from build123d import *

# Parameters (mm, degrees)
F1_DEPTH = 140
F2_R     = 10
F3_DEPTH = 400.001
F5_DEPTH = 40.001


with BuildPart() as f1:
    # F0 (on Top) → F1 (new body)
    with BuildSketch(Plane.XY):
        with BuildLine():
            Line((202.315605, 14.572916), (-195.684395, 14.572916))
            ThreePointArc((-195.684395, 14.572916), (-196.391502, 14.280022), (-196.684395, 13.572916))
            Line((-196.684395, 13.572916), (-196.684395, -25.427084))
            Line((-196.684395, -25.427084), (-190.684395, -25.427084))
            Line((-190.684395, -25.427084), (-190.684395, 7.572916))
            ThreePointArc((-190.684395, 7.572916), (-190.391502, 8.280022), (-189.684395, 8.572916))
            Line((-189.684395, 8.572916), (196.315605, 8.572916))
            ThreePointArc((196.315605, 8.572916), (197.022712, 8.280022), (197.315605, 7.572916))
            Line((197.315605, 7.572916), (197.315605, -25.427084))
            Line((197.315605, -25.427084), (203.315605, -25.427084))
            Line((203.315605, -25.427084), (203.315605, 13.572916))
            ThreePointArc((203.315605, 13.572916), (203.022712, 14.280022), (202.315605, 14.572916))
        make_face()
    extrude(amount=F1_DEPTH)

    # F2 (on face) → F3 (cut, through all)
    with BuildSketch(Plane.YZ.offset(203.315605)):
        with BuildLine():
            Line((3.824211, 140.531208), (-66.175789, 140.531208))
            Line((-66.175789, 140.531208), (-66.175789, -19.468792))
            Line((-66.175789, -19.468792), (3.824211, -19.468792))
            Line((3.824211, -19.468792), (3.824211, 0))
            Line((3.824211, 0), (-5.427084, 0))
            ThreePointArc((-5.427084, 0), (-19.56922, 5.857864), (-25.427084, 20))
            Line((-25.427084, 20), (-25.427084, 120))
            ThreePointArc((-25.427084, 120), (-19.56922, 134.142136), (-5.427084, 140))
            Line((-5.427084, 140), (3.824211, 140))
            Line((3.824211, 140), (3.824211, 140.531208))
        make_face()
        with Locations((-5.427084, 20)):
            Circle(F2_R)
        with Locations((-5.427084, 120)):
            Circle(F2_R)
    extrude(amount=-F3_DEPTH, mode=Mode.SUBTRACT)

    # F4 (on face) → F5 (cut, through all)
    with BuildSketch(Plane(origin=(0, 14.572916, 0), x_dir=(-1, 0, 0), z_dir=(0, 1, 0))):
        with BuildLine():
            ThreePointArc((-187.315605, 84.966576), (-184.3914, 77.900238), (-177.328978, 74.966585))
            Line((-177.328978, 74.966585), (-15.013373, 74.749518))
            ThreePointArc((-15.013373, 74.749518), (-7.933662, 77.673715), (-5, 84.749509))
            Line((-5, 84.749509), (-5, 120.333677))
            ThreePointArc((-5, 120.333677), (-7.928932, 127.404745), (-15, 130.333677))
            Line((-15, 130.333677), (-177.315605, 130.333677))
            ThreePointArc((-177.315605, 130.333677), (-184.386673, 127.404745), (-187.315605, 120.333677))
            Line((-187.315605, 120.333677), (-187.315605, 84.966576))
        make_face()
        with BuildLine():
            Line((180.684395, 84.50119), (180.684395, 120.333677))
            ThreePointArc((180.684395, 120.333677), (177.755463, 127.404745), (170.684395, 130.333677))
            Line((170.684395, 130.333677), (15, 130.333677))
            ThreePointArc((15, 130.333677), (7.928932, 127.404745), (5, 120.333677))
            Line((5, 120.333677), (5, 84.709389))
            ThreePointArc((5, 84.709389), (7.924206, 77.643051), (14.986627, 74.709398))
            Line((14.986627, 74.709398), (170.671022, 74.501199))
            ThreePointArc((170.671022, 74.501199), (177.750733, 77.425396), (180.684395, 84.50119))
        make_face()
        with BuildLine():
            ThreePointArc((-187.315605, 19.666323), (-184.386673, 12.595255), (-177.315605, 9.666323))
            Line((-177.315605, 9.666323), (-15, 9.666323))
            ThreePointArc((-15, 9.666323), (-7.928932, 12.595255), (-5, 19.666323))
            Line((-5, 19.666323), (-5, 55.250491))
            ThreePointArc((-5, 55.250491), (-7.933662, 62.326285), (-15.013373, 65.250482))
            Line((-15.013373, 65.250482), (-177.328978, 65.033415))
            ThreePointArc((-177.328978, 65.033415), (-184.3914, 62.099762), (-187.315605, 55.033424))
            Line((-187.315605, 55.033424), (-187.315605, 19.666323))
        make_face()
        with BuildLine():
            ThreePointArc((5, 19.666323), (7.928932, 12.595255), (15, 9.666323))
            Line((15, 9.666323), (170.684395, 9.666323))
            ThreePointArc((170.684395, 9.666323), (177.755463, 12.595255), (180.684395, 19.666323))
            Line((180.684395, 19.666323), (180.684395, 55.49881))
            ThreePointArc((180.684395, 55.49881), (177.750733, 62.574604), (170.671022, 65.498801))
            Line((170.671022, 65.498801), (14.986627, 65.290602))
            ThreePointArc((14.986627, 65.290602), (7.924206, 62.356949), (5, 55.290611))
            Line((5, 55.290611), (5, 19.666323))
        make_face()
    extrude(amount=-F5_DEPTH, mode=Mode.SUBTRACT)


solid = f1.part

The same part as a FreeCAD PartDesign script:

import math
import FreeCAD as App
import Part
import Sketcher
Q = App.Units.Quantity

doc = App.newDocument("Part")
body = doc.addObject("PartDesign::Body", "Body")

# Sketch on XY plane
sketch1 = body.newObject("Sketcher::SketchObject", "Sketch")
sketch1.AttachmentSupport = (doc.getObject("XY_Plane"), [""])
sketch1.MapMode = "FlatFace"
sketch1.addGeometry(Part.LineSegment(App.Vector(202.3, 14.6, 0), App.Vector(-195.7, 14.6, 0)), False)
sketch1.addGeometry(Part.ArcOfCircle(Part.Circle(App.Vector(-195.7, 13.6, 0), App.Vector(0, 0, 1), 1), math.radians(90), math.radians(180)), False)
sketch1.addGeometry(Part.LineSegment(App.Vector(-196.7, 13.6, 0), App.Vector(-196.7, -25.4, 0)), False)
sketch1.addGeometry(Part.LineSegment(App.Vector(-196.7, -25.4, 0), App.Vector(-190.7, -25.4, 0)), False)
sketch1.addGeometry(Part.LineSegment(App.Vector(-190.7, -25.4, 0), App.Vector(-190.7, 7.6, 0)), False)
sketch1.addGeometry(Part.ArcOfCircle(Part.Circle(App.Vector(-189.7, 7.6, 0), App.Vector(0, 0, 1), 1), math.radians(90), math.radians(180)), False)
sketch1.addGeometry(Part.LineSegment(App.Vector(-189.7, 8.6, 0), App.Vector(196.3, 8.6, 0)), False)
sketch1.addGeometry(Part.ArcOfCircle(Part.Circle(App.Vector(196.3, 7.6, 0), App.Vector(0, 0, 1), 1), math.radians(0), math.radians(90)), False)
sketch1.addGeometry(Part.LineSegment(App.Vector(197.3, 7.6, 0), App.Vector(197.3, -25.4, 0)), False)
sketch1.addGeometry(Part.LineSegment(App.Vector(197.3, -25.4, 0), App.Vector(203.3, -25.4, 0)), False)
sketch1.addGeometry(Part.LineSegment(App.Vector(203.3, -25.4, 0), App.Vector(203.3, 13.6, 0)), False)
sketch1.addGeometry(Part.ArcOfCircle(Part.Circle(App.Vector(202.3, 13.6, 0), App.Vector(0, 0, 1), 1), math.radians(0), math.radians(90)), False)
sketch1.addConstraint(Sketcher.Constraint("Tangent", 0, 2, 1, 1))
sketch1.addConstraint(Sketcher.Constraint("Tangent", 1, 2, 2, 1))
sketch1.addConstraint(Sketcher.Constraint("Coincident", 2, 2, 3, 1))
sketch1.addConstraint(Sketcher.Constraint("Coincident", 3, 2, 4, 1))
sketch1.addConstraint(Sketcher.Constraint("Tangent", 4, 2, 5, 2))
sketch1.addConstraint(Sketcher.Constraint("Tangent", 5, 1, 6, 1))
sketch1.addConstraint(Sketcher.Constraint("Tangent", 6, 2, 7, 2))
sketch1.addConstraint(Sketcher.Constraint("Tangent", 7, 1, 8, 1))
sketch1.addConstraint(Sketcher.Constraint("Coincident", 8, 2, 9, 1))
sketch1.addConstraint(Sketcher.Constraint("Coincident", 9, 2, 10, 1))
sketch1.addConstraint(Sketcher.Constraint("Tangent", 10, 2, 11, 1))
sketch1.addConstraint(Sketcher.Constraint("Tangent", 11, 2, 0, 1))
sketch1.addConstraint(Sketcher.Constraint("Horizontal", 0))
sketch1.addConstraint(Sketcher.Constraint("Vertical", 2))
sketch1.addConstraint(Sketcher.Constraint("Horizontal", 3))
sketch1.addConstraint(Sketcher.Constraint("Vertical", 4))
sketch1.addConstraint(Sketcher.Constraint("Horizontal", 6))
sketch1.addConstraint(Sketcher.Constraint("Vertical", 8))
sketch1.addConstraint(Sketcher.Constraint("Horizontal", 9))
sketch1.addConstraint(Sketcher.Constraint("Vertical", 10))
sketch1.addConstraint(Sketcher.Constraint("Equal", 1, 5))
sketch1.addConstraint(Sketcher.Constraint("Equal", 5, 7))
sketch1.addConstraint(Sketcher.Constraint("Equal", 7, 11))
sketch1.addConstraint(Sketcher.Constraint("Horizontal", 3, 2, 8, 2))
sketch1.addConstraint(Sketcher.Constraint("Equal", 3, 9))
sketch1.addConstraint(Sketcher.Constraint("Radius", 1, Q("1.000001 mm")))
sketch1.addConstraint(Sketcher.Constraint("DistanceX", 0, 2, 0, 1, Q("398 mm")))
sketch1.addConstraint(Sketcher.Constraint("DistanceX", 3, 1, 3, 2, Q("6 mm")))
sketch1.addConstraint(Sketcher.Constraint("DistanceY", 2, 2, 2, 1, Q("39 mm")))
sketch1.addConstraint(Sketcher.Constraint("DistanceY", 4, 1, 4, 2, Q("33 mm")))
sketch1.addConstraint(Sketcher.Constraint("DistanceX", 1, 3, -1, 1, Q("195.684394 mm")))
sketch1.addConstraint(Sketcher.Constraint("DistanceY", -1, 1, 1, 3, Q("13.572915 mm")))
pad1 = body.newObject("PartDesign::Pad", "Pad")
pad1.Profile = sketch1
pad1.Length = 140

# Sketch on YZ plane
sketch2 = body.newObject("Sketcher::SketchObject", "Sketch001")
sketch2.AttachmentSupport = (doc.getObject("YZ_Plane"), [""])
sketch2.MapMode = "FlatFace"
sketch2.AttachmentOffset = App.Placement(App.Vector(0, 0, 203.315605), App.Rotation())
sketch2.addGeometry(Part.LineSegment(App.Vector(3.8, 140.5, 0), App.Vector(-66.2, 140.5, 0)), False)
sketch2.addGeometry(Part.LineSegment(App.Vector(-66.2, 140.5, 0), App.Vector(-66.2, -19.5, 0)), False)
sketch2.addGeometry(Part.LineSegment(App.Vector(-66.2, -19.5, 0), App.Vector(3.8, -19.5, 0)), False)
sketch2.addGeometry(Part.LineSegment(App.Vector(3.8, -19.5, 0), App.Vector(3.8, 0, 0)), False)
sketch2.addGeometry(Part.LineSegment(App.Vector(3.8, 0, 0), App.Vector(-5.4, 0, 0)), False)
sketch2.addGeometry(Part.ArcOfCircle(Part.Circle(App.Vector(-5.4, 20, 0), App.Vector(0, 0, 1), 20), math.radians(180), math.radians(270)), False)
sketch2.addGeometry(Part.LineSegment(App.Vector(-25.4, 20, 0), App.Vector(-25.4, 120, 0)), False)
sketch2.addGeometry(Part.ArcOfCircle(Part.Circle(App.Vector(-5.4, 120, 0), App.Vector(0, 0, 1), 20), math.radians(90), math.radians(180)), False)
sketch2.addGeometry(Part.LineSegment(App.Vector(-5.4, 140, 0), App.Vector(3.8, 140, 0)), False)
sketch2.addGeometry(Part.LineSegment(App.Vector(3.8, 140, 0), App.Vector(3.8, 140.5, 0)), False)
sketch2.addGeometry(Part.Circle(App.Vector(-5.4, 20, 0), App.Vector(0, 0, 1), 10), False)
sketch2.addGeometry(Part.Circle(App.Vector(-5.4, 120, 0), App.Vector(0, 0, 1), 10), False)
sketch2.addConstraint(Sketcher.Constraint("Coincident", 0, 2, 1, 1))
sketch2.addConstraint(Sketcher.Constraint("Coincident", 1, 2, 2, 1))
sketch2.addConstraint(Sketcher.Constraint("Coincident", 2, 2, 3, 1))
sketch2.addConstraint(Sketcher.Constraint("Coincident", 3, 2, 4, 1))
sketch2.addConstraint(Sketcher.Constraint("Tangent", 4, 2, 5, 2))
sketch2.addConstraint(Sketcher.Constraint("Tangent", 5, 1, 6, 1))
sketch2.addConstraint(Sketcher.Constraint("Tangent", 6, 2, 7, 2))
sketch2.addConstraint(Sketcher.Constraint("Tangent", 7, 1, 8, 1))
sketch2.addConstraint(Sketcher.Constraint("Coincident", 8, 2, 9, 1))
sketch2.addConstraint(Sketcher.Constraint("Coincident", 9, 2, 0, 1))
sketch2.addConstraint(Sketcher.Constraint("Horizontal", 0))
sketch2.addConstraint(Sketcher.Constraint("Vertical", 1))
sketch2.addConstraint(Sketcher.Constraint("Horizontal", 2))
sketch2.addConstraint(Sketcher.Constraint("Vertical", 3))
sketch2.addConstraint(Sketcher.Constraint("Horizontal", 4))
sketch2.addConstraint(Sketcher.Constraint("Vertical", 6))
sketch2.addConstraint(Sketcher.Constraint("Horizontal", 8))
sketch2.addConstraint(Sketcher.Constraint("Vertical", 9))
sketch2.addConstraint(Sketcher.Constraint("Coincident", 10, 3, 5, 3))
sketch2.addConstraint(Sketcher.Constraint("Coincident", 11, 3, 7, 3))
sketch2.addConstraint(Sketcher.Constraint("Equal", 5, 7))
sketch2.addConstraint(Sketcher.Constraint("Equal", 10, 11))
sketch2.addConstraint(Sketcher.Constraint("PointOnObject", 3, 2, -1))
sketch2.addConstraint(Sketcher.Constraint("Vertical", 3, 2, 8, 2))
sketch2.addConstraint(Sketcher.Constraint("Diameter", 10, Q("20 mm")))
sketch2.addConstraint(Sketcher.Constraint("Radius", 5, Q("19.999999 mm")))
sketch2.addConstraint(Sketcher.Constraint("DistanceX", 0, 2, 0, 1, Q("70 mm")))
sketch2.addConstraint(Sketcher.Constraint("DistanceY", 1, 2, 1, 1, Q("160 mm")))
sketch2.addConstraint(Sketcher.Constraint("DistanceY", 6, 1, 6, 2, Q("100 mm")))
sketch2.addConstraint(Sketcher.Constraint("DistanceX", 4, 2, 4, 1, Q("9.251295 mm")))
sketch2.addConstraint(Sketcher.Constraint("DistanceY", 3, 1, 3, 2, Q("19.468792 mm")))
sketch2.addConstraint(Sketcher.Constraint("DistanceX", 0, 2, -1, 1, Q("66.175789 mm")))
pocket1 = body.newObject("PartDesign::Pocket", "Pocket")
pocket1.Profile = sketch2
pocket1.Type = "ThroughAll"

# Sketch on XZ plane
sketch3 = body.newObject("Sketcher::SketchObject", "Sketch002")
sketch3.AttachmentSupport = (doc.getObject("XZ_Plane"), [""])
sketch3.MapMode = "FlatFace"
sketch3.AttachmentOffset = App.Placement(App.Vector(0, 0, -14.572916), App.Rotation())
sketch3.addGeometry(Part.ArcOfCircle(Part.Circle(App.Vector(177, 85, 0), App.Vector(0, 0, 1), 10), math.radians(-90), math.radians(0)), False)
sketch3.addGeometry(Part.LineSegment(App.Vector(177, 75, 0), App.Vector(15, 75, 0)), False)
sketch3.addGeometry(Part.ArcOfCircle(Part.Circle(App.Vector(15, 85, 0), App.Vector(0, 0, 1), 10), math.radians(-180), math.radians(-90)), False)
sketch3.addGeometry(Part.LineSegment(App.Vector(5, 85, 0), App.Vector(5, 120, 0)), False)
sketch3.addGeometry(Part.ArcOfCircle(Part.Circle(App.Vector(15, 120, 0), App.Vector(0, 0, 1), 10), math.radians(90), math.radians(180)), False)
sketch3.addGeometry(Part.LineSegment(App.Vector(15, 130, 0), App.Vector(177, 130, 0)), False)
sketch3.addGeometry(Part.ArcOfCircle(Part.Circle(App.Vector(177, 120, 0), App.Vector(0, 0, 1), 10), math.radians(0), math.radians(90)), False)
sketch3.addGeometry(Part.LineSegment(App.Vector(187, 120, 0), App.Vector(187, 85, 0)), False)
sketch3.addGeometry(Part.LineSegment(App.Vector(-181, 85, 0), App.Vector(-181, 120, 0)), False)
sketch3.addGeometry(Part.ArcOfCircle(Part.Circle(App.Vector(-171, 120, 0), App.Vector(0, 0, 1), 10), math.radians(90), math.radians(180)), False)
sketch3.addGeometry(Part.LineSegment(App.Vector(-171, 130, 0), App.Vector(-15, 130, 0)), False)
sketch3.addGeometry(Part.ArcOfCircle(Part.Circle(App.Vector(-15, 120, 0), App.Vector(0, 0, 1), 10), math.radians(0), math.radians(90)), False)
sketch3.addGeometry(Part.LineSegment(App.Vector(-5, 120, 0), App.Vector(-5, 85, 0)), False)
sketch3.addGeometry(Part.ArcOfCircle(Part.Circle(App.Vector(-15, 85, 0), App.Vector(0, 0, 1), 10), math.radians(-90), math.radians(0)), False)
sketch3.addGeometry(Part.LineSegment(App.Vector(-15, 75, 0), App.Vector(-171, 75, 0)), False)
sketch3.addGeometry(Part.ArcOfCircle(Part.Circle(App.Vector(-171, 85, 0), App.Vector(0, 0, 1), 10), math.radians(-180), math.radians(-90)), False)
sketch3.addGeometry(Part.ArcOfCircle(Part.Circle(App.Vector(177, 20, 0), App.Vector(0, 0, 1), 10), math.radians(-90), math.radians(0)), False)
sketch3.addGeometry(Part.LineSegment(App.Vector(177, 10, 0), App.Vector(15, 10, 0)), False)
sketch3.addGeometry(Part.ArcOfCircle(Part.Circle(App.Vector(15, 20, 0), App.Vector(0, 0, 1), 10), math.radians(180), math.radians(270)), False)
sketch3.addGeometry(Part.LineSegment(App.Vector(5, 20, 0), App.Vector(5, 55, 0)), False)
sketch3.addGeometry(Part.ArcOfCircle(Part.Circle(App.Vector(15, 55, 0), App.Vector(0, 0, 1), 10), math.radians(90), math.radians(180)), False)
sketch3.addGeometry(Part.LineSegment(App.Vector(15, 65, 0), App.Vector(177, 65, 0)), False)
sketch3.addGeometry(Part.ArcOfCircle(Part.Circle(App.Vector(177, 55, 0), App.Vector(0, 0, 1), 10), math.radians(0), math.radians(90)), False)
sketch3.addGeometry(Part.LineSegment(App.Vector(187, 55, 0), App.Vector(187, 20, 0)), False)
sketch3.addGeometry(Part.ArcOfCircle(Part.Circle(App.Vector(-15, 20, 0), App.Vector(0, 0, 1), 10), math.radians(-90), math.radians(0)), False)
sketch3.addGeometry(Part.LineSegment(App.Vector(-15, 10, 0), App.Vector(-171, 10, 0)), False)
sketch3.addGeometry(Part.ArcOfCircle(Part.Circle(App.Vector(-171, 20, 0), App.Vector(0, 0, 1), 10), math.radians(180), math.radians(270)), False)
sketch3.addGeometry(Part.LineSegment(App.Vector(-181, 20, 0), App.Vector(-181, 55, 0)), False)
sketch3.addGeometry(Part.ArcOfCircle(Part.Circle(App.Vector(-171, 55, 0), App.Vector(0, 0, 1), 10), math.radians(90), math.radians(180)), False)
sketch3.addGeometry(Part.LineSegment(App.Vector(-171, 65, 0), App.Vector(-15, 65, 0)), False)
sketch3.addGeometry(Part.ArcOfCircle(Part.Circle(App.Vector(-15, 55, 0), App.Vector(0, 0, 1), 10), math.radians(0), math.radians(90)), False)
sketch3.addGeometry(Part.LineSegment(App.Vector(-5, 55, 0), App.Vector(-5, 20, 0)), False)
sketch3.addConstraint(Sketcher.Constraint("Tangent", 0, 1, 1, 1))
sketch3.addConstraint(Sketcher.Constraint("Tangent", 1, 2, 2, 2))
sketch3.addConstraint(Sketcher.Constraint("Tangent", 2, 1, 3, 1))
sketch3.addConstraint(Sketcher.Constraint("Tangent", 3, 2, 4, 2))
sketch3.addConstraint(Sketcher.Constraint("Tangent", 4, 1, 5, 1))
sketch3.addConstraint(Sketcher.Constraint("Tangent", 5, 2, 6, 2))
sketch3.addConstraint(Sketcher.Constraint("Tangent", 6, 1, 7, 1))
sketch3.addConstraint(Sketcher.Constraint("Tangent", 7, 2, 0, 2))
sketch3.addConstraint(Sketcher.Constraint("Tangent", 8, 2, 9, 2))
sketch3.addConstraint(Sketcher.Constraint("Tangent", 9, 1, 10, 1))
sketch3.addConstraint(Sketcher.Constraint("Tangent", 10, 2, 11, 2))
sketch3.addConstraint(Sketcher.Constraint("Tangent", 11, 1, 12, 1))
sketch3.addConstraint(Sketcher.Constraint("Tangent", 12, 2, 13, 2))
sketch3.addConstraint(Sketcher.Constraint("Tangent", 13, 1, 14, 1))
sketch3.addConstraint(Sketcher.Constraint("Tangent", 14, 2, 15, 2))
sketch3.addConstraint(Sketcher.Constraint("Tangent", 15, 1, 8, 1))
sketch3.addConstraint(Sketcher.Constraint("Tangent", 16, 1, 17, 1))
sketch3.addConstraint(Sketcher.Constraint("Tangent", 17, 2, 18, 2))
sketch3.addConstraint(Sketcher.Constraint("Tangent", 18, 1, 19, 1))
sketch3.addConstraint(Sketcher.Constraint("Tangent", 19, 2, 20, 2))
sketch3.addConstraint(Sketcher.Constraint("Tangent", 20, 1, 21, 1))
sketch3.addConstraint(Sketcher.Constraint("Tangent", 21, 2, 22, 2))
sketch3.addConstraint(Sketcher.Constraint("Tangent", 22, 1, 23, 1))
sketch3.addConstraint(Sketcher.Constraint("Tangent", 23, 2, 16, 2))
sketch3.addConstraint(Sketcher.Constraint("Tangent", 24, 1, 25, 1))
sketch3.addConstraint(Sketcher.Constraint("Tangent", 25, 2, 26, 2))
sketch3.addConstraint(Sketcher.Constraint("Tangent", 26, 1, 27, 1))
sketch3.addConstraint(Sketcher.Constraint("Tangent", 27, 2, 28, 2))
sketch3.addConstraint(Sketcher.Constraint("Tangent", 28, 1, 29, 1))
sketch3.addConstraint(Sketcher.Constraint("Tangent", 29, 2, 30, 2))
sketch3.addConstraint(Sketcher.Constraint("Tangent", 30, 1, 31, 1))
sketch3.addConstraint(Sketcher.Constraint("Tangent", 31, 2, 24, 2))
sketch3.addConstraint(Sketcher.Constraint("Vertical", 3))
sketch3.addConstraint(Sketcher.Constraint("Horizontal", 5))
sketch3.addConstraint(Sketcher.Constraint("Vertical", 7))
sketch3.addConstraint(Sketcher.Constraint("Vertical", 8))
sketch3.addConstraint(Sketcher.Constraint("Horizontal", 10))
sketch3.addConstraint(Sketcher.Constraint("Vertical", 12))
sketch3.addConstraint(Sketcher.Constraint("Horizontal", 17))
sketch3.addConstraint(Sketcher.Constraint("Vertical", 19))
sketch3.addConstraint(Sketcher.Constraint("Vertical", 23))
sketch3.addConstraint(Sketcher.Constraint("Horizontal", 25))
sketch3.addConstraint(Sketcher.Constraint("Vertical", 27))
sketch3.addConstraint(Sketcher.Constraint("Vertical", 31))
sketch3.addConstraint(Sketcher.Constraint("Equal", 0, 2))
sketch3.addConstraint(Sketcher.Constraint("Equal", 2, 4))
sketch3.addConstraint(Sketcher.Constraint("Equal", 4, 6))
sketch3.addConstraint(Sketcher.Constraint("Equal", 6, 9))
sketch3.addConstraint(Sketcher.Constraint("Equal", 9, 11))
sketch3.addConstraint(Sketcher.Constraint("Equal", 11, 13))
sketch3.addConstraint(Sketcher.Constraint("Equal", 13, 15))
sketch3.addConstraint(Sketcher.Constraint("Equal", 15, 16))
sketch3.addConstraint(Sketcher.Constraint("Equal", 16, 18))
sketch3.addConstraint(Sketcher.Constraint("Equal", 18, 20))
sketch3.addConstraint(Sketcher.Constraint("Equal", 20, 22))
sketch3.addConstraint(Sketcher.Constraint("Equal", 22, 24))
sketch3.addConstraint(Sketcher.Constraint("Equal", 24, 26))
sketch3.addConstraint(Sketcher.Constraint("Equal", 26, 28))
sketch3.addConstraint(Sketcher.Constraint("Equal", 28, 30))
sketch3.addConstraint(Sketcher.Constraint("Symmetric", 4, 3, 11, 3, -2))
sketch3.addConstraint(Sketcher.Constraint("Symmetric", 18, 3, 24, 3, -2))
sketch3.addConstraint(Sketcher.Constraint("Parallel", 1, 14))
sketch3.addConstraint(Sketcher.Constraint("Parallel", 21, 29))
sketch3.addConstraint(Sketcher.Constraint("Vertical", 6, 3, 16, 3))
sketch3.addConstraint(Sketcher.Constraint("Vertical", 4, 3, 18, 3))
sketch3.addConstraint(Sketcher.Constraint("Vertical", 15, 3, 26, 3))
sketch3.addConstraint(Sketcher.Constraint("Vertical", 1, 2, 20, 1))
sketch3.addConstraint(Sketcher.Constraint("Equal", 3, 19))
sketch3.addConstraint(Sketcher.Constraint("Equal", 8, 27))
sketch3.addConstraint(Sketcher.Constraint("Radius", 0, Q("9.999999 mm")))
sketch3.addConstraint(Sketcher.Constraint("DistanceX", -1, 1, 2, 3, Q("15.000001 mm")))
sketch3.addConstraint(Sketcher.Constraint("DistanceX", 9, 3, 6, 3, Q("348.000001 mm")))
sketch3.addConstraint(Sketcher.Constraint("DistanceY", 7, 2, 7, 1, Q("35.367101 mm")))
sketch3.addConstraint(Sketcher.Constraint("DistanceY", -1, 1, 14, 2, Q("74.501199 mm")))
sketch3.addConstraint(Sketcher.Constraint("DistanceY", -1, 1, 28, 1, Q("65.498801 mm")))
sketch3.addConstraint(Sketcher.Constraint("DistanceY", 15, 3, 13, 3, Q("0.208199 mm")))
sketch3.addConstraint(Sketcher.Constraint("DistanceY", 20, 3, 13, 3, Q("29.458899 mm")))
sketch3.addConstraint(Sketcher.Constraint("Distance", 1, Q("162.31575 mm")))
pocket2 = body.newObject("PartDesign::Pocket", "Pocket001")
pocket2.Profile = sketch3
pocket2.Type = "ThroughAll"
pocket2.Reversed = True

doc.recompute()
